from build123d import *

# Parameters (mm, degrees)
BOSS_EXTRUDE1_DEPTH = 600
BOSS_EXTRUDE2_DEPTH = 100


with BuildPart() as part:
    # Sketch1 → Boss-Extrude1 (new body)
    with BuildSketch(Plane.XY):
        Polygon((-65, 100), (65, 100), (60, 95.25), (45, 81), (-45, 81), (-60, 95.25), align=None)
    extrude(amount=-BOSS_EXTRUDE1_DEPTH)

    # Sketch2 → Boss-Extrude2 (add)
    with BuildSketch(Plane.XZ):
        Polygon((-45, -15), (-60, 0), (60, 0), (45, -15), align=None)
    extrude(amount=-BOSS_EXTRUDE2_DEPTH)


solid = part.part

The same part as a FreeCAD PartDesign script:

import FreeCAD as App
import Part
import Sketcher
Q = App.Units.Quantity

doc = App.newDocument("Part")
body = doc.addObject("PartDesign::Body", "Body")

sketch1 = doc.addObject("Sketcher::SketchObject", "Sketch")
body.addObject(sketch1)
sketch1.AttachmentSupport = (doc.XY_Plane, [""])
sketch1.MapMode = "FlatFace"
sketch1.addGeometry([
    Part.LineSegment(App.Vector(65, 100, 0), App.Vector(-65, 100, 0)),
    Part.LineSegment(App.Vector(-65, 100, 0), App.Vector(-45, 81, 0)),
    Part.LineSegment(App.Vector(-45, 81, 0), App.Vector(45, 81, 0)),
    Part.LineSegment(App.Vector(45, 81, 0), App.Vector(65, 100, 0)),
], False)
sketch1.addConstraint([
    Sketcher.Constraint("Coincident", 0, 2, 1, 1),
    Sketcher.Constraint("Coincident", 1, 2, 2, 1),
    Sketcher.Constraint("Coincident", 2, 2, 3, 1),
    Sketcher.Constraint("Coincident", 3, 2, 0, 1),
    Sketcher.Constraint("Horizontal", 0),
    Sketcher.Constraint("Horizontal", 2),
    Sketcher.Constraint("Equal", 1, 3),
    Sketcher.Constraint("DistanceX", 0, 2, 0, 1, Q("130 mm")),
    Sketcher.Constraint("DistanceX", 2, 1, 2, 2, Q("90 mm")),
    Sketcher.Constraint("DistanceX", 0, 2, -1, 1, Q("65 mm")),
    Sketcher.Constraint("DistanceY", -1, 1, 0, 2, Q("100 mm")),
    Sketcher.Constraint("DistanceY", -1, 1, 1, 2, Q("81 mm")),
])
pad1 = doc.addObject("PartDesign::Pad", "Pad")
body.addObject(pad1)
pad1.Profile = sketch1
pad1.Length = 600
pad1.Reversed = True

sketch2 = doc.addObject("Sketcher::SketchObject", "Sketch001")
body.addObject(sketch2)
sketch2.AttachmentSupport = (doc.XZ_Plane, [""])
sketch2.MapMode = "FlatFace"
sketch2.addGeometry([
    Part.LineSegment(App.Vector(-60, 0, 0), App.Vector(-45, -15, 0)),
    Part.LineSegment(App.Vector(-45, -15, 0), App.Vector(45, -15, 0)),
    Part.LineSegment(App.Vector(45, -15, 0), App.Vector(60, 0, 0)),
    Part.LineSegment(App.Vector(60, 0, 0), App.Vector(-60, 0, 0)),
], False)
sketch2.addConstraint([
    Sketcher.Constraint("Coincident", 0, 2, 1, 1),
    Sketcher.Constraint("Coincident", 1, 2, 2, 1),
    Sketcher.Constraint("Coincident", 2, 2, 3, 1),
    Sketcher.Constraint("Coincident", 3, 2, 0, 1),
    Sketcher.Constraint("Horizontal", 1),
    Sketcher.Constraint("Horizontal", 3),
    Sketcher.Constraint("Symmetric", 2, 2, 3, 2, -1, 1),
    Sketcher.Constraint("Perpendicular", 0, 2),
    Sketcher.Constraint("Equal", 0, 2),
    Sketcher.Constraint("DistanceX", 1, 1, 1, 2, Q("90 mm")),
    Sketcher.Constraint("DistanceX", 3, 2, 3, 1, Q("120 mm")),
])
pad2 = doc.addObject("PartDesign::Pad", "Pad001")
body.addObject(pad2)
pad2.Profile = sketch2
pad2.Length = 100
pad2.Reversed = True

doc.recompute()
